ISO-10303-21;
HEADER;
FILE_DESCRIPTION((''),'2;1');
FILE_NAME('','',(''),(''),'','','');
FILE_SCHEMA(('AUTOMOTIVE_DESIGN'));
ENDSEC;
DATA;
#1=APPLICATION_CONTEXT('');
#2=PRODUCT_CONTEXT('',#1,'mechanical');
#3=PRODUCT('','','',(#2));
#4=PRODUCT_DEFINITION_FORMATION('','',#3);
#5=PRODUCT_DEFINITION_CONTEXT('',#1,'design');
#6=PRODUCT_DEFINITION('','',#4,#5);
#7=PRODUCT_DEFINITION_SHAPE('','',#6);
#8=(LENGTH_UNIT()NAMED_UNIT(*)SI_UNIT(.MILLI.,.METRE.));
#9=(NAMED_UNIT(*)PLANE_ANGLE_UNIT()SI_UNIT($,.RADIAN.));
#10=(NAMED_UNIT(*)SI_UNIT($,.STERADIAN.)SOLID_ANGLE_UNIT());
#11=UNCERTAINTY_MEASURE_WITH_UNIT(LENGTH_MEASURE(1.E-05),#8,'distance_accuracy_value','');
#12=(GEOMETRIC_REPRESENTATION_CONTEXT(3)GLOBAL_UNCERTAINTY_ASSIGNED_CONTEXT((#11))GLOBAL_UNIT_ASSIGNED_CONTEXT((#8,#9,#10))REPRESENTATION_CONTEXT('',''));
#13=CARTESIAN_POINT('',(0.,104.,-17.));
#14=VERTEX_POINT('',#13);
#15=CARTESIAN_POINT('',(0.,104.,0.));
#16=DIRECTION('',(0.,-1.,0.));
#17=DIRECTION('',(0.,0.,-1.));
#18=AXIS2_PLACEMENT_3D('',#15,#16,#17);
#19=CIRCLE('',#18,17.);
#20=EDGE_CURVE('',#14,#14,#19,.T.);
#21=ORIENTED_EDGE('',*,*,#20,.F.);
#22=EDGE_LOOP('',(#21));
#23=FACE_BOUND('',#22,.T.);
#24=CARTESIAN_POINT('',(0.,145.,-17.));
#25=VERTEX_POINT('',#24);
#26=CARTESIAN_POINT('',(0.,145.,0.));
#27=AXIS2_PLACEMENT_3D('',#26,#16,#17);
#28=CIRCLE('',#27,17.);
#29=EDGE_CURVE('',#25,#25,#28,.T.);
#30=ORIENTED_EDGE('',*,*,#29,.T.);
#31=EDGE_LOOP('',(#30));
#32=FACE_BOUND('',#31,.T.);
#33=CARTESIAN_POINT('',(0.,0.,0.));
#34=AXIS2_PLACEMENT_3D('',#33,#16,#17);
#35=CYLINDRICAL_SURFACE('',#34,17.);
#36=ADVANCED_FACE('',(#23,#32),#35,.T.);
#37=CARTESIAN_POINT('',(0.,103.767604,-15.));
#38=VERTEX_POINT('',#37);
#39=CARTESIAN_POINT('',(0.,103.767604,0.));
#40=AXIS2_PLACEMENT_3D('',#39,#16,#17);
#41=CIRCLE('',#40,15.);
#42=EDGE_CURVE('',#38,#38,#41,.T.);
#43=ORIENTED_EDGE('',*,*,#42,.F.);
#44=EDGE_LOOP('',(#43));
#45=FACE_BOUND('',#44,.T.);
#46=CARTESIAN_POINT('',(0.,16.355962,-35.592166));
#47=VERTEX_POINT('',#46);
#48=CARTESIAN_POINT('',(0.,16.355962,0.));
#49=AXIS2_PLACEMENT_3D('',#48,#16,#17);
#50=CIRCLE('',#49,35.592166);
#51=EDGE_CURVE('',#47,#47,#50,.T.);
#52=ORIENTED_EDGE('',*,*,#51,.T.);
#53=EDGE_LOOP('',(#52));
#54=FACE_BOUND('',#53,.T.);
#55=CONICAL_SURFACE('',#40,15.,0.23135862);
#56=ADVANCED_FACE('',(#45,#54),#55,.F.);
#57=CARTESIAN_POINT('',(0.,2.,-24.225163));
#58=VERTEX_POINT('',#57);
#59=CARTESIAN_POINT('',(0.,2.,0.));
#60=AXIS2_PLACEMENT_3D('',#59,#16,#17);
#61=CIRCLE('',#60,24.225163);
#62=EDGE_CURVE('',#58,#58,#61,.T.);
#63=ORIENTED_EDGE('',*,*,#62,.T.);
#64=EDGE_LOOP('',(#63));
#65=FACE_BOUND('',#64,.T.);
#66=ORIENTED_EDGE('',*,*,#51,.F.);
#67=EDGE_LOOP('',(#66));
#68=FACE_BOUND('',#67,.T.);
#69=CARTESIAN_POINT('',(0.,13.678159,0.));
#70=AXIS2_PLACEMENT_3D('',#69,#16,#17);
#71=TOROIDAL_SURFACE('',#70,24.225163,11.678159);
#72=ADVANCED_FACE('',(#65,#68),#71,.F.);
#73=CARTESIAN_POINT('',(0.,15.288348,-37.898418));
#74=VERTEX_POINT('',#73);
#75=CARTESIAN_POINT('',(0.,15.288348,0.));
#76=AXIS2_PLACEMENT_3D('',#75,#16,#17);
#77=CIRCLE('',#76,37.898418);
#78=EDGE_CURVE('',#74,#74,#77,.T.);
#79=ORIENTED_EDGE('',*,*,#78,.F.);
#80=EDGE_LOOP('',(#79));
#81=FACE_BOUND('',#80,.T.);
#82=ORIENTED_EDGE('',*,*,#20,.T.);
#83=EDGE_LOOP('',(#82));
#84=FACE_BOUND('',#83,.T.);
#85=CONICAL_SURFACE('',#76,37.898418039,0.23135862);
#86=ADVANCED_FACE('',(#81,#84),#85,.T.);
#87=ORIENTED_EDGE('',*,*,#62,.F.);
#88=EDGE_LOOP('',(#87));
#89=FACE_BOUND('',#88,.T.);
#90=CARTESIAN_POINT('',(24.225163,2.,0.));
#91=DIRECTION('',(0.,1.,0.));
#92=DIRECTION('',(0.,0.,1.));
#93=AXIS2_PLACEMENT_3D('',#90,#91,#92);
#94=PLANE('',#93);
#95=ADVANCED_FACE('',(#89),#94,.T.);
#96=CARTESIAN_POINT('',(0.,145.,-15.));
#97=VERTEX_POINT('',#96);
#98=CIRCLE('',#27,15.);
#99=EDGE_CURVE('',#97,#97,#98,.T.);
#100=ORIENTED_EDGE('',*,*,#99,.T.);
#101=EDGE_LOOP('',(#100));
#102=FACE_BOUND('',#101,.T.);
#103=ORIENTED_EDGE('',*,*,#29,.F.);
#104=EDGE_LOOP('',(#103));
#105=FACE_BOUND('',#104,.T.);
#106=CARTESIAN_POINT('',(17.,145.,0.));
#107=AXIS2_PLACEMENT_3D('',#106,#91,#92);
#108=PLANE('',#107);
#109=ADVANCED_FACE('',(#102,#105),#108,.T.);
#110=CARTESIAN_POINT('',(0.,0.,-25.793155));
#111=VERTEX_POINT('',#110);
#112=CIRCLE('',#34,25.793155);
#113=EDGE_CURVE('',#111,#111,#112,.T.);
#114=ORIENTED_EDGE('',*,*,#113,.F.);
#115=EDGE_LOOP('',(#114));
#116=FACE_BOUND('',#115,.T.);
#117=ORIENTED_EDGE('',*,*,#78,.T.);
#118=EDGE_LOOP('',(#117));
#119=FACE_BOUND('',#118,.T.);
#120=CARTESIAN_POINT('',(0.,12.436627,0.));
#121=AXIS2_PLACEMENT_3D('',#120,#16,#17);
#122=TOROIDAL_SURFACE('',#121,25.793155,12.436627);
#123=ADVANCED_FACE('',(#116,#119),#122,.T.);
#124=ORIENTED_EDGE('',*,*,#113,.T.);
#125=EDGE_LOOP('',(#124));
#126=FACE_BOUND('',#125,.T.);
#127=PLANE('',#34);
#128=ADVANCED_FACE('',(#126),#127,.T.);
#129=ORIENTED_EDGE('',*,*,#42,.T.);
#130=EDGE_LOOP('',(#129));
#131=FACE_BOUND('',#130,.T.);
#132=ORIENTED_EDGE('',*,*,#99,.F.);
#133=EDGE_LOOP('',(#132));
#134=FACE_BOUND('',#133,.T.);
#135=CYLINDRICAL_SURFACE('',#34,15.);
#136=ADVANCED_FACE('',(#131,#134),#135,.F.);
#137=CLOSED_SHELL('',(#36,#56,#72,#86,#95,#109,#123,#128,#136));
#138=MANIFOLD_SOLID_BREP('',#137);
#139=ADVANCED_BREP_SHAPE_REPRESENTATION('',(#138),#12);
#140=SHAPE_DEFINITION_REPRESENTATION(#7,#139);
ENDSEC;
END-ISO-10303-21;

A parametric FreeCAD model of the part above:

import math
import FreeCAD as App
import Part
import Sketcher

doc = App.newDocument("Part")
params = doc.addObject("Spreadsheet::Sheet", "Params")
for row, (alias, value) in enumerate([
    ("sketch1_width", "2 mm"),
    ("sketch1_height", "41 mm"),
    ("revolution_angle", "360 deg"),
], start=1):
    params.set(f"A{row}", alias)
    params.set(f"B{row}", "=" + value)
    params.setAlias(f"B{row}", alias)

body = doc.addObject("PartDesign::Body", "Body")

# Sketch on XY plane
sketch1 = body.newObject("Sketcher::SketchObject", "Sketch")
sketch1.AttachmentSupport = (doc.getObject("XY_Plane"), [""])
sketch1.MapMode = "FlatFace"
sketch1.addGeometry([
    Part.LineSegment(App.Vector(17, 104, 0), App.Vector(17, 145, 0)),  # 0
    Part.LineSegment(App.Vector(17, 145, 0), App.Vector(15, 145, 0)),  # 1
    Part.LineSegment(App.Vector(15, 145, 0), App.Vector(15, 103.767604, 0)),  # 2
    Part.LineSegment(App.Vector(15, 103.767604, 0), App.Vector(35.592166, 16.355962, 0)),  # 3
    Part.ArcOfCircle(Part.Circle(App.Vector(24.225163, 13.678159, 0), App.Vector(0, 0, 1), 11.678159), math.radians(-90), math.radians(13.255872)),  # 4
    Part.LineSegment(App.Vector(24.225163, 2, 0), App.Vector(0, 2, 0)),  # 5
    Part.LineSegment(App.Vector(0, 2, 0), App.Vector(0, 0, 0)),  # 6
    Part.LineSegment(App.Vector(0, 0, 0), App.Vector(25.793155, 0, 0)),  # 7
    Part.ArcOfCircle(Part.Circle(App.Vector(25.793155, 12.436627, 0), App.Vector(0, 0, 1), 12.436627), math.radians(-90), math.radians(13.255872)),  # 8
    Part.LineSegment(App.Vector(37.898418, 15.288348, 0), App.Vector(17, 104, 0)),  # 9
], False)
sketch1.addConstraint([
    Sketcher.Constraint("Coincident", 0, 2, 1, 1),
    Sketcher.Constraint("Coincident", 1, 2, 2, 1),
    Sketcher.Constraint("Coincident", 2, 2, 3, 1),
    Sketcher.Constraint("Tangent", 3, 2, 4, 2),
    Sketcher.Constraint("Tangent", 4, 1, 5, 1),
    Sketcher.Constraint("Coincident", 5, 2, 6, 1),
    Sketcher.Constraint("Coincident", 6, 2, 7, 1),
    Sketcher.Constraint("Tangent", 7, 2, 8, 1),
    Sketcher.Constraint("Tangent", 8, 2, 9, 1),
    Sketcher.Constraint("Coincident", 9, 2, 0, 1),
    Sketcher.Constraint("Vertical", 0),
    Sketcher.Constraint("Horizontal", 1),
    Sketcher.Constraint("Vertical", 2),
    Sketcher.Constraint("Horizontal", 5),
    Sketcher.Constraint("Vertical", 6),
    Sketcher.Constraint("Horizontal", 7),
    Sketcher.Constraint("Coincident", 6, 2, -1, 1),
    Sketcher.Constraint("Parallel", 3, 9),
    Sketcher.Constraint("Equal", 1, 6),
    Sketcher.Constraint("DistanceX", 1, 2, 1, 1, 2.0),
    Sketcher.Constraint("DistanceY", 0, 1, 0, 2, 41.0),
    Sketcher.Constraint("DistanceX", -1, 1, 0, 2, 17.0),
    Sketcher.Constraint("DistanceY", -1, 1, 0, 2, 145.0),
    Sketcher.Constraint("Radius", 4, 11.678159),
    Sketcher.Constraint("Radius", 8, 12.436627),
    Sketcher.Constraint("Distance", 3, 89.804412),
    Sketcher.Constraint("Distance", 9, 91.140008),
])
sketch1.setExpression("Constraints[19]", "Params.sketch1_width")
sketch1.setExpression("Constraints[20]", "Params.sketch1_height")
revolution = body.newObject("PartDesign::Revolution", "Revolution")
revolution.Profile = sketch1
revolution.ReferenceAxis = (sketch1, ["V_Axis"])
revolution.setExpression("Angle", "Params.revolution_angle")

doc.recompute()
